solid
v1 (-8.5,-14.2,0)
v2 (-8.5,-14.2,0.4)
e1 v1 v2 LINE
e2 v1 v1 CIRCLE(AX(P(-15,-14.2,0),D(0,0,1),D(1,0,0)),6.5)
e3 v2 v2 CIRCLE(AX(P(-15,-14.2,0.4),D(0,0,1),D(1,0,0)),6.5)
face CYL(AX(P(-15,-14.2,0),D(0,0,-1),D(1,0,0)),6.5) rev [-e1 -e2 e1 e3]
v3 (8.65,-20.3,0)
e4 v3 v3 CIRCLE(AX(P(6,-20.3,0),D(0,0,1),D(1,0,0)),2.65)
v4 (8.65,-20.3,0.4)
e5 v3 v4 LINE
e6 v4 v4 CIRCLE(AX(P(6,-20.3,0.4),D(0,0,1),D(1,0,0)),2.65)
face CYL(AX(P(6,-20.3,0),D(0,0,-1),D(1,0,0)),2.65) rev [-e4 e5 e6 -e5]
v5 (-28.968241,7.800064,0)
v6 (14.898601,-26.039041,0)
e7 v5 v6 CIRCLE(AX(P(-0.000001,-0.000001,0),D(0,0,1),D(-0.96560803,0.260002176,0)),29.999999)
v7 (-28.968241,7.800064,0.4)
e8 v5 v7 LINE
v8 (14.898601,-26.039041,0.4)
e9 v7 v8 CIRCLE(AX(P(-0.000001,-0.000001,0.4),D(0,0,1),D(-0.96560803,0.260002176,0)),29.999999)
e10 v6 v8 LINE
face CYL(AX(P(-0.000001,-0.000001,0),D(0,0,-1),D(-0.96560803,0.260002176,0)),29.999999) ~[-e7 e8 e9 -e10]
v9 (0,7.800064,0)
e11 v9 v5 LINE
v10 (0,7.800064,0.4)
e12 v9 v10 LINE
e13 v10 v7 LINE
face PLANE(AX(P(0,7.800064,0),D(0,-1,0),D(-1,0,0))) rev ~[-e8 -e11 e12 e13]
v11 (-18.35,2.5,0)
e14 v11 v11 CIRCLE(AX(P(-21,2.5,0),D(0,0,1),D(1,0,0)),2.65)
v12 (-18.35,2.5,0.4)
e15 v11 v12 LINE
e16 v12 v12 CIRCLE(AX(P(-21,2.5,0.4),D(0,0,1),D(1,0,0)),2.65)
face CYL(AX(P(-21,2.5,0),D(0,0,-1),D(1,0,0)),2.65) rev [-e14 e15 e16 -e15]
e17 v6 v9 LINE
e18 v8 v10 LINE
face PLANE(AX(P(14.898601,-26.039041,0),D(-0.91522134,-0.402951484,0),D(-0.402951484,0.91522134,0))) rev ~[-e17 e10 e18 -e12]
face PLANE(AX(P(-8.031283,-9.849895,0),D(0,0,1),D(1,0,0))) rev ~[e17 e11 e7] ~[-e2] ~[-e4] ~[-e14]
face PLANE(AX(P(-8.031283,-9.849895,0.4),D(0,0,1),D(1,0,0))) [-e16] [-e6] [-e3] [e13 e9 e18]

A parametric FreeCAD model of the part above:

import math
import FreeCAD as App
import Part
import Sketcher
Q = App.Units.Quantity

doc = App.newDocument("Part")
params = doc.addObject("Spreadsheet::Sheet", "Params")
for row, (alias, value) in enumerate([
    ("sketch1_diameter", "13 mm"),
    ("sketch1_radius", "29.999999 mm"),
    ("sketch1_diameter2", "5.3 mm"),
    ("pad1_length", "0.4 mm"),
], start=1):
    params.set(f"A{row}", alias)
    params.set(f"B{row}", "=" + value)
    params.setAlias(f"B{row}", alias)

body = doc.addObject("PartDesign::Body", "Body")

sketch1 = body.newObject("Sketcher::SketchObject", "Sketch")
sketch1.AttachmentSupport = (doc.getObject("XY_Plane"), [""])
sketch1.MapMode = "FlatFace"
sketch1.addGeometry(Part.LineSegment(App.Vector(0, 7.800064, 0), App.Vector(-28.968241, 7.800064, 0)), False)
sketch1.addGeometry(Part.ArcOfCircle(Part.Circle(App.Vector(-0.000001, -0.000001, 0), App.Vector(0, 0, 1), 29.999999), math.radians(164.929809), math.radians(299.776637)), False)
sketch1.addGeometry(Part.LineSegment(App.Vector(14.898601, -26.039041, 0), App.Vector(0, 7.800064, 0)), False)
sketch1.addGeometry(Part.Circle(App.Vector(-15, -14.2, 0), App.Vector(0, 0, 1), 6.5), False)
sketch1.addGeometry(Part.Circle(App.Vector(6, -20.3, 0), App.Vector(0, 0, 1), 2.65), False)
sketch1.addGeometry(Part.Circle(App.Vector(-21, 2.5, 0), App.Vector(0, 0, 1), 2.65), False)
sketch1.addConstraint(Sketcher.Constraint("Coincident", 0, 2, 1, 1))
sketch1.addConstraint(Sketcher.Constraint("Coincident", 1, 2, 2, 1))
sketch1.addConstraint(Sketcher.Constraint("Coincident", 2, 2, 0, 1))
sketch1.addConstraint(Sketcher.Constraint("Horizontal", 0))
sketch1.addConstraint(Sketcher.Constraint("Coincident", 1, 3, -1, 1))
sketch1.addConstraint(Sketcher.Constraint("Equal", 4, 5))
sketch1.addConstraint(Sketcher.Constraint("PointOnObject", 2, 2, -2))
sketch1.addConstraint(Sketcher.Constraint("Diameter", 3, Q("13 mm")))
sketch1.addConstraint(Sketcher.Constraint("Radius", 1, Q("29.999999 mm")))
sketch1.addConstraint(Sketcher.Constraint("Diameter", 4, Q("5.3 mm")))
sketch1.addConstraint(Sketcher.Constraint("DistanceX", 3, 3, -1, 1, Q("15 mm")))
sketch1.addConstraint(Sketcher.Constraint("DistanceX", -1, 1, 4, 3, Q("6 mm")))
sketch1.addConstraint(Sketcher.Constraint("DistanceX", 5, 3, -1, 1, Q("21 mm")))
sketch1.addConstraint(Sketcher.Constraint("DistanceY", 3, 3, -1, 1, Q("14.2 mm")))
sketch1.addConstraint(Sketcher.Constraint("DistanceY", 4, 3, -1, 1, Q("20.3 mm")))
sketch1.addConstraint(Sketcher.Constraint("DistanceY", -1, 1, 5, 3, Q("2.5 mm")))
sketch1.addConstraint(Sketcher.Constraint("DistanceX", 0, 2, 0, 1, Q("28.968241 mm")))
sketch1.addConstraint(Sketcher.Constraint("DistanceX", -1, 1, 1, 2, Q("14.898601 mm")))
sketch1.setExpression("Constraints[7]", "Params.sketch1_diameter")
sketch1.setExpression("Constraints[8]", "Params.sketch1_radius")
sketch1.setExpression("Constraints[9]", "Params.sketch1_diameter2")
pad1 = body.newObject("PartDesign::Pad", "Pad")
pad1.Profile = sketch1
pad1.setExpression("Length", "Params.pad1_length")

doc.recompute()
